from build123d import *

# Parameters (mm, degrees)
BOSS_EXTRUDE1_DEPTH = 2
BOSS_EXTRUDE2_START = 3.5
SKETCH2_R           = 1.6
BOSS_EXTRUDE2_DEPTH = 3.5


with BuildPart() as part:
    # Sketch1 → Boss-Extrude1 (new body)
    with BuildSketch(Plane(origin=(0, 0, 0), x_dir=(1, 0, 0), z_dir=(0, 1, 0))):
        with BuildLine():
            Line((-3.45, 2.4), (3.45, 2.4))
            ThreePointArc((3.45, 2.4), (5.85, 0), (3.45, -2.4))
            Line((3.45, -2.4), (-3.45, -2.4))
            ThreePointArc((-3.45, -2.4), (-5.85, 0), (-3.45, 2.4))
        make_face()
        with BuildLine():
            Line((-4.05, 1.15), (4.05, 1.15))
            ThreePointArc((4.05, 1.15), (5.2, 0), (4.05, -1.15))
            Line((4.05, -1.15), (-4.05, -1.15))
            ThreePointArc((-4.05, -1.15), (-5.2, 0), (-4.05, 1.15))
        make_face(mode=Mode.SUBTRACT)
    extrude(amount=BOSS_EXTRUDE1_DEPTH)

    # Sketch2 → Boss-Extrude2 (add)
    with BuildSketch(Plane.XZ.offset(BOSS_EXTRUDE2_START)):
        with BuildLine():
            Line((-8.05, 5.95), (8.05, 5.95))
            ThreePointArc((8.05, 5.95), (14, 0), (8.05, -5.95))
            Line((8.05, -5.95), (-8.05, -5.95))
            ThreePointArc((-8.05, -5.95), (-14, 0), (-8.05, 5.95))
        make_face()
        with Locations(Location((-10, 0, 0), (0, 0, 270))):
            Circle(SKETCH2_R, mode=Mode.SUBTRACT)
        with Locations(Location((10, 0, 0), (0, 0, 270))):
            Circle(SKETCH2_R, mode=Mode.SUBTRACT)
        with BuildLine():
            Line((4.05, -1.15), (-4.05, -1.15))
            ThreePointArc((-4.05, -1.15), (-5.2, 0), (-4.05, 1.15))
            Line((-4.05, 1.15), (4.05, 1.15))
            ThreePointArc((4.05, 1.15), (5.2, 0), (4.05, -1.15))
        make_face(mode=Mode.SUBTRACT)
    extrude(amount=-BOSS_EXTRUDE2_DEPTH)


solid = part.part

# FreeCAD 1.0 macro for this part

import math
import FreeCAD as App
import Part
import Sketcher

V = App.Vector
Q = App.Units.Quantity

doc = App.newDocument("Part")
body = doc.addObject("PartDesign::Body", "Body")

# Sketch on XZ plane
sketch1 = body.newObject("Sketcher::SketchObject", "Sketch")
sketch1.AttachmentSupport = (doc.getObject("XZ_Plane"), [""])
sketch1.MapMode = "FlatFace"
sketch1.addGeometry(Part.LineSegment(V(3.5, -2.4, 0), V(-3.5, -2.4, 0)), False)
sketch1.addGeometry(Part.ArcOfCircle(Part.Circle(V(-3.5, 0, 0), V(0, 0, 1), 2.4), math.radians(90), math.radians(270)), False)
sketch1.addGeometry(Part.LineSegment(V(-3.5, 2.4, 0), V(3.5, 2.4, 0)), False)
sketch1.addGeometry(Part.ArcOfCircle(Part.Circle(V(3.5, 0, 0), V(0, 0, 1), 2.4), math.radians(-90), math.radians(90)), False)
sketch1.addGeometry(Part.LineSegment(V(-4, -1.1, 0), V(4, -1.1, 0)), False)
sketch1.addGeometry(Part.ArcOfCircle(Part.Circle(V(4, 0, 0), V(0, 0, 1), 1.1), math.radians(-90), math.radians(90)), False)
sketch1.addGeometry(Part.LineSegment(V(4, 1.1, 0), V(-4, 1.1, 0)), False)
sketch1.addGeometry(Part.ArcOfCircle(Part.Circle(V(-4, 0, 0), V(0, 0, 1), 1.1), math.radians(90), math.radians(270)), False)
sketch1.addConstraint(Sketcher.Constraint("Tangent", 0, 2, 1, 2))
sketch1.addConstraint(Sketcher.Constraint("Tangent", 1, 1, 2, 1))
sketch1.addConstraint(Sketcher.Constraint("Tangent", 2, 2, 3, 2))
sketch1.addConstraint(Sketcher.Constraint("Tangent", 3, 1, 0, 1))
sketch1.addConstraint(Sketcher.Constraint("Tangent", 4, 2, 5, 1))
sketch1.addConstraint(Sketcher.Constraint("Tangent", 5, 2, 6, 1))
sketch1.addConstraint(Sketcher.Constraint("Tangent", 6, 2, 7, 1))
sketch1.addConstraint(Sketcher.Constraint("Tangent", 7, 2, 4, 1))
sketch1.addConstraint(Sketcher.Constraint("Horizontal", 0))
sketch1.addConstraint(Sketcher.Constraint("Horizontal", 2))
sketch1.addConstraint(Sketcher.Constraint("Horizontal", 4))
sketch1.addConstraint(Sketcher.Constraint("Horizontal", 6))
sketch1.addConstraint(Sketcher.Constraint("Symmetric", 1, 3, 3, 3, -1, 1))
sketch1.addConstraint(Sketcher.Constraint("Symmetric", 5, 3, 7, 3, -1, 1))
sketch1.addConstraint(Sketcher.Constraint("Radius", 1, Q("2.4 mm")))
sketch1.addConstraint(Sketcher.Constraint("Radius", 5, Q("1.15 mm")))
sketch1.addConstraint(Sketcher.Constraint("DistanceX", 0, 2, 0, 1, Q("6.9 mm")))
sketch1.addConstraint(Sketcher.Constraint("DistanceX", 4, 1, 4, 2, Q("8.1 mm")))
pad1 = body.newObject("PartDesign::Pad", "Pad")
pad1.Profile = sketch1
pad1.Length = 2
pad1.Reversed = True

# Sketch on XZ plane
sketch2 = body.newObject("Sketcher::SketchObject", "Sketch001")
sketch2.AttachmentSupport = (doc.getObject("XZ_Plane"), [""])
sketch2.MapMode = "FlatFace"
sketch2.AttachmentOffset = App.Placement(V(0, 0, 3.5), App.Rotation())
sketch2.addGeometry(Part.LineSegment(V(8.1, 6, 0), V(-8.1, 6, 0)), False)
sketch2.addGeometry(Part.ArcOfCircle(Part.Circle(V(-8.1, 0, 0), V(0, 0, 1), 6), math.radians(90), math.radians(270)), False)
sketch2.addGeometry(Part.LineSegment(V(-8.1, -6, 0), V(8.1, -6, 0)), False)
sketch2.addGeometry(Part.ArcOfCircle(Part.Circle(V(8.1, 0, 0), V(0, 0, 1), 6), math.radians(-90), math.radians(90)), False)
sketch2.addGeometry(Part.Circle(V(10, 0, 0), V(0, 0, 1), 1.6), False)
sketch2.addGeometry(Part.LineSegment(V(4, -1.1, 0), V(-4, -1.1, 0)), False)
sketch2.addGeometry(Part.ArcOfCircle(Part.Circle(V(-4, 0, 0), V(0, 0, 1), 1.1), math.radians(90), math.radians(270)), False)
sketch2.addGeometry(Part.LineSegment(V(-4, 1.1, 0), V(4, 1.1, 0)), False)
sketch2.addGeometry(Part.ArcOfCircle(Part.Circle(V(4, 0, 0), V(0, 0, 1), 1.1), math.radians(-90), math.radians(90)), False)
sketch2.addGeometry(Part.Circle(V(-10, 0, 0), V(0, 0, 1), 1.6), False)
sketch2.addConstraint(Sketcher.Constraint("Tangent", 0, 2, 1, 1))
sketch2.addConstraint(Sketcher.Constraint("Tangent", 1, 2, 2, 1))
sketch2.addConstraint(Sketcher.Constraint("Tangent", 2, 2, 3, 1))
sketch2.addConstraint(Sketcher.Constraint("Tangent", 3, 2, 0, 1))
sketch2.addConstraint(Sketcher.Constraint("Tangent", 5, 2, 6, 2))
sketch2.addConstraint(Sketcher.Constraint("Tangent", 6, 1, 7, 1))
sketch2.addConstraint(Sketcher.Constraint("Tangent", 7, 2, 8, 2))
sketch2.addConstraint(Sketcher.Constraint("Tangent", 8, 1, 5, 1))
sketch2.addConstraint(Sketcher.Constraint("Horizontal", 0))
sketch2.addConstraint(Sketcher.Constraint("Horizontal", 2))
sketch2.addConstraint(Sketcher.Constraint("Horizontal", 5))
sketch2.addConstraint(Sketcher.Constraint("Horizontal", 7))
sketch2.addConstraint(Sketcher.Constraint("Equal", 4, 9))
sketch2.addConstraint(Sketcher.Constraint("Symmetric", 1, 3, 3, 3, -1, 1))
sketch2.addConstraint(Sketcher.Constraint("Symmetric", 6, 3, 8, 3, -1, 1))
sketch2.addConstraint(Sketcher.Constraint("Symmetric", 4, 3, 9, 3, -1, 1))
sketch2.addConstraint(Sketcher.Constraint("PointOnObject", 4, 3, -1))
sketch2.addConstraint(Sketcher.Constraint("Diameter", 4, Q("3.2 mm")))
sketch2.addConstraint(Sketcher.Constraint("Radius", 1, Q("5.95 mm")))
sketch2.addConstraint(Sketcher.Constraint("Radius", 6, Q("1.15 mm")))
sketch2.addConstraint(Sketcher.Constraint("DistanceX", 0, 2, 0, 1, Q("16.1 mm")))
sketch2.addConstraint(Sketcher.Constraint("DistanceX", 5, 2, 5, 1, Q("8.1 mm")))
sketch2.addConstraint(Sketcher.Constraint("DistanceX", -1, 1, 4, 3, Q("10 mm")))
pad2 = body.newObject("PartDesign::Pad", "Pad001")
pad2.Profile = sketch2
pad2.Length = 3.5
pad2.Reversed = True

doc.recompute()
